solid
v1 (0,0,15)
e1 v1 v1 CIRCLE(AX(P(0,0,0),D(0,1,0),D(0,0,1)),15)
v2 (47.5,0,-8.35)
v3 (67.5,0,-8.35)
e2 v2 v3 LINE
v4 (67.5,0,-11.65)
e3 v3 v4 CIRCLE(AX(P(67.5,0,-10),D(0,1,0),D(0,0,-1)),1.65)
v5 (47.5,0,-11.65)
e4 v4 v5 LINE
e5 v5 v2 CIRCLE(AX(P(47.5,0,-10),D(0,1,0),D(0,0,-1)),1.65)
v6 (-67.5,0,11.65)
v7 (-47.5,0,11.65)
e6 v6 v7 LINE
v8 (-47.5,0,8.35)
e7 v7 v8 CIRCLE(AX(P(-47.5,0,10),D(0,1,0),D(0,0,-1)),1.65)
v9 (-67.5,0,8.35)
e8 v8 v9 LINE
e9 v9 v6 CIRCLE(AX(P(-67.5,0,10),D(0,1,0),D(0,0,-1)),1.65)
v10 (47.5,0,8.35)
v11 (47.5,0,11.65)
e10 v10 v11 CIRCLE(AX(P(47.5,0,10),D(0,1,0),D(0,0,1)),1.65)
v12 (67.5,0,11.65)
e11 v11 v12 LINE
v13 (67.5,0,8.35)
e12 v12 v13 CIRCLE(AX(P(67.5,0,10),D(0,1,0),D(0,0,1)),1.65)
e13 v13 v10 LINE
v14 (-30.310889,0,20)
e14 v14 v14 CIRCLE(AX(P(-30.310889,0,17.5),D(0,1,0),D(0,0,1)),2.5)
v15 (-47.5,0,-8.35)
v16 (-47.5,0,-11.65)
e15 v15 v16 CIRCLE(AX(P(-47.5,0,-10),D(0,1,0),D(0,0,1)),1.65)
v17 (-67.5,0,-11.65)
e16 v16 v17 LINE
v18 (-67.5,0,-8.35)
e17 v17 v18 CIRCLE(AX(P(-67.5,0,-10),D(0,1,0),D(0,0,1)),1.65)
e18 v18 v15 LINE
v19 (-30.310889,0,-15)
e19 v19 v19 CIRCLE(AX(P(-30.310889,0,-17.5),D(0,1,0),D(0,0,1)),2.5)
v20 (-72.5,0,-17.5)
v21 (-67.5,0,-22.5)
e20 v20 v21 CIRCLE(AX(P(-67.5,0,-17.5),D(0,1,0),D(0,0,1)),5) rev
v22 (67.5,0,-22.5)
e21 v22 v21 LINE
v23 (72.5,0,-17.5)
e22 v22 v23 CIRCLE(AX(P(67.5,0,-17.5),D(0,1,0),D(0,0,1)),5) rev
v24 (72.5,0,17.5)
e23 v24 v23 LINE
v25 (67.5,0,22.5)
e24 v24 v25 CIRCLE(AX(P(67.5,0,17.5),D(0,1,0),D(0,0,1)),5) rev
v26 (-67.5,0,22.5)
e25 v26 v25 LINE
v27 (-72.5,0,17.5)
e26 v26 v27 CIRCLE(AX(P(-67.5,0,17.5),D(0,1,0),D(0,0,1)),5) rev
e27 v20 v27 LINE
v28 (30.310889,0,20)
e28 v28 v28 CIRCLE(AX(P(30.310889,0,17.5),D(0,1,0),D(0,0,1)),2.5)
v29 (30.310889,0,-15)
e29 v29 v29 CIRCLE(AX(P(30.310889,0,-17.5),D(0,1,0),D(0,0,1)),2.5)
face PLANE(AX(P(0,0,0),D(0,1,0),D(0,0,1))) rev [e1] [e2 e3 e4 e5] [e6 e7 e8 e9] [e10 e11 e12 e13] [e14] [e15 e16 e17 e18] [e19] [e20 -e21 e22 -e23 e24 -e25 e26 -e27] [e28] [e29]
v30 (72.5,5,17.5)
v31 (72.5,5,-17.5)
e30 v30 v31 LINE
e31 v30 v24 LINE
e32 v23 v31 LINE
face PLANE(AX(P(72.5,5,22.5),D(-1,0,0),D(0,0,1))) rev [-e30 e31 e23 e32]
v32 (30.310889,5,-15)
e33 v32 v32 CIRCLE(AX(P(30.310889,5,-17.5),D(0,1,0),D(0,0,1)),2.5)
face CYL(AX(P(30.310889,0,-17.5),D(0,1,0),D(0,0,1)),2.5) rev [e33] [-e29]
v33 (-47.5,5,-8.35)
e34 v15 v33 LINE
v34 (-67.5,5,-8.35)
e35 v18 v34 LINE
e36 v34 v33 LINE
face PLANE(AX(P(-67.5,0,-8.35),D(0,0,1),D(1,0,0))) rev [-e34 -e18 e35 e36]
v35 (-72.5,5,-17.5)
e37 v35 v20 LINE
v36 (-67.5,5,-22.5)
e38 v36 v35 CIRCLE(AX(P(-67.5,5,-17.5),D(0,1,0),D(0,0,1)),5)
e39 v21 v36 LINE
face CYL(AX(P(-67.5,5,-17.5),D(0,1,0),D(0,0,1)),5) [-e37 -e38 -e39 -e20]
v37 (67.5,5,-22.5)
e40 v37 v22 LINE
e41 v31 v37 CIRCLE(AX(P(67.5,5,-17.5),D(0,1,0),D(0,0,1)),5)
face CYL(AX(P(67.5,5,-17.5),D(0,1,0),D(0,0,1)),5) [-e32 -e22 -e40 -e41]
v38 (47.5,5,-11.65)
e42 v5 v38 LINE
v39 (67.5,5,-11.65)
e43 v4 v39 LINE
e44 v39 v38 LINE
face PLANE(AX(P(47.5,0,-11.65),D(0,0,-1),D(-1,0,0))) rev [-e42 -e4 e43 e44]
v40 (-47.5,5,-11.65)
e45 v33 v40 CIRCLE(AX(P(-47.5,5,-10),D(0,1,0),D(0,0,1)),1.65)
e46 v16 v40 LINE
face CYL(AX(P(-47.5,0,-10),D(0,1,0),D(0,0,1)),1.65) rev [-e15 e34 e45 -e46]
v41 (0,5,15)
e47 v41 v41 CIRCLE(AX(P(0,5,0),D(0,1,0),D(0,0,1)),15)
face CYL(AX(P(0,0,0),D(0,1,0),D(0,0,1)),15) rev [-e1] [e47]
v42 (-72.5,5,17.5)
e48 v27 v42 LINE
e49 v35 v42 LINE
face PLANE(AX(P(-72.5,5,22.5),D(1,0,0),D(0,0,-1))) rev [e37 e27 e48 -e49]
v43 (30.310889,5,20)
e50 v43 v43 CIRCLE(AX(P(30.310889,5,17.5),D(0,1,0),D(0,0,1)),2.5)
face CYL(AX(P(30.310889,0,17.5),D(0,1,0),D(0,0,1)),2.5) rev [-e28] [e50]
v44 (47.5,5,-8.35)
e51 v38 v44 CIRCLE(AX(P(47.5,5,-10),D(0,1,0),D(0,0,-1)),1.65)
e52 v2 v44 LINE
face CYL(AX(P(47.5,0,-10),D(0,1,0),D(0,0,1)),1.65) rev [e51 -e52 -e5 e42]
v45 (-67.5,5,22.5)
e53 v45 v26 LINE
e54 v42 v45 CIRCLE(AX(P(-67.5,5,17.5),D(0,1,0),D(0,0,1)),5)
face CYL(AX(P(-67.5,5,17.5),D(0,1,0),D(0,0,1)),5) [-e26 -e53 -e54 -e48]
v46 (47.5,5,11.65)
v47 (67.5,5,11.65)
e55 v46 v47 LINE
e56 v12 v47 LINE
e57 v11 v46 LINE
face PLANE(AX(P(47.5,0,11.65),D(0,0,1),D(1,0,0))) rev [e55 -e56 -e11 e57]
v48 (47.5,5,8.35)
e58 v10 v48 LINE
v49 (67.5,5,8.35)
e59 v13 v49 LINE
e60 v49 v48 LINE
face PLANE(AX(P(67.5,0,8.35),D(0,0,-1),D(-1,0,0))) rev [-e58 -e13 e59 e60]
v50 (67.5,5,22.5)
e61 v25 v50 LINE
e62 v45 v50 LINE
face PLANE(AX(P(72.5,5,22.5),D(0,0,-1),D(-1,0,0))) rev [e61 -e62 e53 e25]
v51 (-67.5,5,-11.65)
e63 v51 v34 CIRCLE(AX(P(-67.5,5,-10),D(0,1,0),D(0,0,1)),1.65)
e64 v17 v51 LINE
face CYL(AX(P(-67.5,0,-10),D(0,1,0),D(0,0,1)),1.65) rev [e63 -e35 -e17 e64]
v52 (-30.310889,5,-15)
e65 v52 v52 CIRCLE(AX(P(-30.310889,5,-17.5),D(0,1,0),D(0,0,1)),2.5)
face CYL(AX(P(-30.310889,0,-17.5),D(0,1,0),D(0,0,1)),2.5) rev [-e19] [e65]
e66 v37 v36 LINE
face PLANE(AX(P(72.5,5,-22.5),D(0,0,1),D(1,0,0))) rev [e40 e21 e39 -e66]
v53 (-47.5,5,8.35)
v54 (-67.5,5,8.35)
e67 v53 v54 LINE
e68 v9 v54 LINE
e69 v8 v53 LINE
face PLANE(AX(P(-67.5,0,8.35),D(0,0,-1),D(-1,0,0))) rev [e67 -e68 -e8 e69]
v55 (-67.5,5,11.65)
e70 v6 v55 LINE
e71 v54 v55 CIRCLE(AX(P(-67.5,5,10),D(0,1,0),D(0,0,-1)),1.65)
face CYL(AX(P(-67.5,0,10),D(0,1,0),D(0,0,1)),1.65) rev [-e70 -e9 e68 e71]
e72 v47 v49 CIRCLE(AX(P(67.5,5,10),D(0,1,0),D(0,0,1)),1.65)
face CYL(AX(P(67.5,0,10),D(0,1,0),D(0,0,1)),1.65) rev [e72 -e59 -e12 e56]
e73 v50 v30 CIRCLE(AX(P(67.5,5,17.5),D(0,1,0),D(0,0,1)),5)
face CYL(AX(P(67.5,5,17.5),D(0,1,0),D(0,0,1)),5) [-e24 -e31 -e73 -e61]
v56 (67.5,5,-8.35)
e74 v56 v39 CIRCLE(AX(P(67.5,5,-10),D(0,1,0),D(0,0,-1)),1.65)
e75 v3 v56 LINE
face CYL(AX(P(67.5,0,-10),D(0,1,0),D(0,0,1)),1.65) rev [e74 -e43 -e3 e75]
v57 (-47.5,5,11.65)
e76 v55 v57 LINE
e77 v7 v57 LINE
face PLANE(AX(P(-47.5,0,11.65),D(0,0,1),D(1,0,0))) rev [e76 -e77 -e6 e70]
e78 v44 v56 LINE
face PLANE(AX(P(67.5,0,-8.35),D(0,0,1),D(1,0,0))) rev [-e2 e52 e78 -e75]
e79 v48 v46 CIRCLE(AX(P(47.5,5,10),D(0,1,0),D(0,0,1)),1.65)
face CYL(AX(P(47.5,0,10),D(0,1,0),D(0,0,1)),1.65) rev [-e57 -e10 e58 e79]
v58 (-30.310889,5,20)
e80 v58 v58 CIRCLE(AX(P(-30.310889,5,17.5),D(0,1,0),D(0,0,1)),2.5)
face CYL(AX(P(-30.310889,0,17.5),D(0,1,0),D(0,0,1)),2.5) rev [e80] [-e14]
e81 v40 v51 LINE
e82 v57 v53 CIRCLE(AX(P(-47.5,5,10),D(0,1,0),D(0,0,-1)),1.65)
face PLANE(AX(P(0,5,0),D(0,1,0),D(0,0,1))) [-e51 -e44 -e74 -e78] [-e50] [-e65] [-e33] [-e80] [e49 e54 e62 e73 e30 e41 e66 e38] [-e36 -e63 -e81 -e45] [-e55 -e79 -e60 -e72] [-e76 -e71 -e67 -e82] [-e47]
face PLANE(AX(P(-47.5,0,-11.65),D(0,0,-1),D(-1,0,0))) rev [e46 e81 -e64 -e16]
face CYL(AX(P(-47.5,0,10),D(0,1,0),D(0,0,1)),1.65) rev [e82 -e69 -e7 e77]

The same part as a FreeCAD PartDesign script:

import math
import FreeCAD as App
import Part
import Sketcher

V = App.Vector


def edges_at(feature, points):
    """Names of the edges that pass closest to the given points."""
    edges = feature.Shape.Edges
    near = lambda p: min(range(len(edges)), key=lambda i: edges[i].distToShape(Part.Vertex(*p))[0])
    return sorted({f"Edge{near(p) + 1}" for p in points})

doc = App.newDocument("Part")
body = doc.addObject("PartDesign::Body", "Body")

# Sketch on XZ plane
sketch1 = body.newObject("Sketcher::SketchObject", "Sketch")
sketch1.AttachmentSupport = (doc.getObject("XZ_Plane"), [""])
sketch1.MapMode = "FlatFace"
sketch1.addGeometry([
    Part.LineSegment(V(-72, -22, 0), V(-72, 22, 0)),
    Part.LineSegment(V(-72, 22, 0), V(72, 22, 0)),
    Part.LineSegment(V(72, 22, 0), V(72, -22, 0)),
    Part.LineSegment(V(72, -22, 0), V(-72, -22, 0)),
], False)
sketch1.addConstraint([
    Sketcher.Constraint("Coincident", 0, 2, 1, 1),
    Sketcher.Constraint("Coincident", 1, 2, 2, 1),
    Sketcher.Constraint("Coincident", 2, 2, 3, 1),
    Sketcher.Constraint("Coincident", 3, 2, 0, 1),
    Sketcher.Constraint("Vertical", 0),
    Sketcher.Constraint("Horizontal", 1),
    Sketcher.Constraint("Vertical", 2),
    Sketcher.Constraint("Horizontal", 3),
    Sketcher.Constraint("Symmetric", 0, 2, 2, 2, -1, 1),
    Sketcher.Constraint("DistanceX", 1, 1, 1, 2, 145.0),
    Sketcher.Constraint("DistanceY", 0, 1, 0, 2, 45.0),
])
pad1 = body.newObject("PartDesign::Pad", "Pad")
pad1.Profile = sketch1
pad1.Length = 5
pad1.Reversed = True

# Sketch on XZ plane
sketch2 = body.newObject("Sketcher::SketchObject", "Sketch001")
sketch2.AttachmentSupport = (doc.getObject("XZ_Plane"), [""])
sketch2.MapMode = "FlatFace"
sketch2.AttachmentOffset = App.Placement(V(0, 0, -5), App.Rotation())
sketch2.addGeometry([
    Part.LineSegment(V(-67.5, -8.3, 0), V(-47.5, -8.3, 0)),  # 0
    Part.ArcOfCircle(Part.Circle(V(-47.5, -10, 0), V(0, 0, 1), 1.6), math.radians(-90), math.radians(90)),  # 1
    Part.LineSegment(V(-47.5, -11.7, 0), V(-67.5, -11.7, 0)),  # 2
    Part.ArcOfCircle(Part.Circle(V(-67.5, -10, 0), V(0, 0, 1), 1.6), math.radians(90), math.radians(270)),  # 3
    Part.LineSegment(V(-67.5, 11.7, 0), V(-47.5, 11.7, 0)),  # 4
    Part.ArcOfCircle(Part.Circle(V(-47.5, 10, 0), V(0, 0, 1), 1.6), math.radians(-90), math.radians(90)),  # 5
    Part.LineSegment(V(-47.5, 8.3, 0), V(-67.5, 8.3, 0)),  # 6
    Part.ArcOfCircle(Part.Circle(V(-67.5, 10, 0), V(0, 0, 1), 1.6), math.radians(90), math.radians(270)),  # 7
    Part.LineSegment(V(67.5, -11.7, 0), V(47.5, -11.7, 0)),  # 8
    Part.ArcOfCircle(Part.Circle(V(47.5, -10, 0), V(0, 0, 1), 1.6), math.radians(90), math.radians(270)),  # 9
    Part.LineSegment(V(47.5, -8.3, 0), V(67.5, -8.3, 0)),  # 10
    Part.ArcOfCircle(Part.Circle(V(67.5, -10, 0), V(0, 0, 1), 1.6), math.radians(-90), math.radians(90)),  # 11
    Part.LineSegment(V(47.5, 11.7, 0), V(67.5, 11.7, 0)),  # 12
    Part.ArcOfCircle(Part.Circle(V(67.5, 10, 0), V(0, 0, 1), 1.6), math.radians(-90), math.radians(90)),  # 13
    Part.LineSegment(V(67.5, 8.3, 0), V(47.5, 8.3, 0)),  # 14
    Part.ArcOfCircle(Part.Circle(V(47.5, 10, 0), V(0, 0, 1), 1.6), math.radians(90), math.radians(270)),  # 15
], False)
sketch2.addConstraint([
    Sketcher.Constraint("Tangent", 0, 2, 1, 2),
    Sketcher.Constraint("Tangent", 1, 1, 2, 1),
    Sketcher.Constraint("Tangent", 2, 2, 3, 2),
    Sketcher.Constraint("Tangent", 3, 1, 0, 1),
    Sketcher.Constraint("Tangent", 4, 2, 5, 2),
    Sketcher.Constraint("Tangent", 5, 1, 6, 1),
    Sketcher.Constraint("Tangent", 6, 2, 7, 2),
    Sketcher.Constraint("Tangent", 7, 1, 4, 1),
    Sketcher.Constraint("Tangent", 8, 2, 9, 2),
    Sketcher.Constraint("Tangent", 9, 1, 10, 1),
    Sketcher.Constraint("Tangent", 10, 2, 11, 2),
    Sketcher.Constraint("Tangent", 11, 1, 8, 1),
    Sketcher.Constraint("Tangent", 12, 2, 13, 2),
    Sketcher.Constraint("Tangent", 13, 1, 14, 1),
    Sketcher.Constraint("Tangent", 14, 2, 15, 2),
    Sketcher.Constraint("Tangent", 15, 1, 12, 1),
    Sketcher.Constraint("Horizontal", 0),
    Sketcher.Constraint("Horizontal", 2),
    Sketcher.Constraint("Horizontal", 4),
    Sketcher.Constraint("Horizontal", 6),
    Sketcher.Constraint("Horizontal", 8),
    Sketcher.Constraint("Horizontal", 10),
    Sketcher.Constraint("Horizontal", 12),
    Sketcher.Constraint("Horizontal", 14),
    Sketcher.Constraint("Equal", 3, 5),
    Sketcher.Constraint("Equal", 7, 9),
    Sketcher.Constraint("Equal", 11, 13),
    Sketcher.Constraint("Symmetric", 5, 3, 9, 3, -1, 1),
    Sketcher.Constraint("Symmetric", 3, 3, 13, 3, -1, 1),
    Sketcher.Constraint("Symmetric", 1, 3, 9, 3, -2),
    Sketcher.Constraint("Vertical", 3, 3, 7, 3),
    Sketcher.Constraint("Vertical", 11, 3, 13, 3),
    Sketcher.Constraint("Vertical", 9, 3, 15, 3),
    Sketcher.Constraint("DistanceX", 0, 1, 0, 2, 20.0),
    Sketcher.Constraint("Radius", 1, 1.65),
    Sketcher.Constraint("DistanceY", 1, 3, -1, 1, 10.0),
    Sketcher.Constraint("DistanceX", 1, 3, 9, 3, 95.0),
])
pocket1 = body.newObject("PartDesign::Pocket", "Pocket")
pocket1.Profile = sketch2
pocket1.Type = "ThroughAll"
pocket1.Reversed = True
doc.recompute()

fillet = body.newObject("PartDesign::Fillet", "Fillet")
fillet.Base = (pocket1, edges_at(pocket1, [(72.5, 2.5, -22.5)]))
fillet.Radius = 5
doc.recompute()

fillet2 = body.newObject("PartDesign::Fillet", "Fillet001")
fillet2.Base = (fillet, edges_at(fillet, [(-72.5, 2.5, -22.5)]))
fillet2.Radius = 5
doc.recompute()

fillet3 = body.newObject("PartDesign::Fillet", "Fillet002")
fillet3.Base = (fillet2, edges_at(fillet2, [(-72.5, 2.5, 22.5)]))
fillet3.Radius = 5
doc.recompute()

fillet4 = body.newObject("PartDesign::Fillet", "Fillet003")
fillet4.Base = (fillet3, edges_at(fillet3, [(72.5, 2.5, 22.5)]))
fillet4.Radius = 5

# Sketch on XZ plane
sketch3 = body.newObject("Sketcher::SketchObject", "Sketch002")
sketch3.AttachmentSupport = (doc.getObject("XZ_Plane"), [""])
sketch3.MapMode = "FlatFace"
sketch3.AttachmentOffset = App.Placement(V(0, 0, -5), App.Rotation())
sketch3.addGeometry([
    Part.Circle(V(30.3, -17.5, 0), V(0, 0, 1), 2.5),
    Part.Circle(V(30.3, 17.5, 0), V(0, 0, 1), 2.5),
    Part.Circle(V(-30.3, 17.5, 0), V(0, 0, 1), 2.5),
    Part.Circle(V(-30.3, -17.5, 0), V(0, 0, 1), 2.5),
], False)
sketch3.addConstraint([
    Sketcher.Constraint("Equal", 0, 1),
    Sketcher.Constraint("Equal", 1, 2),
    Sketcher.Constraint("Equal", 2, 3),
    Sketcher.Constraint("Symmetric", 0, 3, 2, 3, -1, 1),
    Sketcher.Constraint("Symmetric", 1, 3, 3, 3, -1, 1),
    Sketcher.Constraint("Symmetric", 1, 3, 2, 3, -2),
    Sketcher.Constraint("Diameter", 0, 5.0),
    Sketcher.Constraint("DistanceY", 0, 3, 1, 3, 35.0),
    Sketcher.Constraint("DistanceX", -1, 1, 0, 3, 30.310889),
])
pocket2 = body.newObject("PartDesign::Pocket", "Pocket001")
pocket2.Profile = sketch3
pocket2.Type = "ThroughAll"
pocket2.Reversed = True

# Sketch on XZ plane
sketch4 = body.newObject("Sketcher::SketchObject", "Sketch003")
sketch4.AttachmentSupport = (doc.getObject("XZ_Plane"), [""])
sketch4.MapMode = "FlatFace"
sketch4.AttachmentOffset = App.Placement(V(0, 0, -5), App.Rotation())
sketch4.addGeometry(Part.Circle(V(0, 0, 0), V(0, 0, 1), 15), False)
sketch4.addConstraint([
    Sketcher.Constraint("Coincident", 0, 3, -1, 1),
    Sketcher.Constraint("Diameter", 0, 30.0),
])
pocket3 = body.newObject("PartDesign::Pocket", "Pocket002")
pocket3.Profile = sketch4
pocket3.Type = "ThroughAll"
pocket3.Reversed = True

doc.recompute()
